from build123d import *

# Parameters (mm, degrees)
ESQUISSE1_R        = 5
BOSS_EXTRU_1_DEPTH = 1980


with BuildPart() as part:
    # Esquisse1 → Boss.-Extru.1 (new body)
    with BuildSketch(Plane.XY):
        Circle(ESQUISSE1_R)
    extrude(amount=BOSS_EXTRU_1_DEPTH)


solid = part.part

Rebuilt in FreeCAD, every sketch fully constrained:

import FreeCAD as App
import Part
import Sketcher

V = App.Vector

doc = App.newDocument("Part")
params = doc.addObject("Spreadsheet::Sheet", "Params")
for row, (alias, value) in enumerate([
    ("sketch1_diameter", "10 mm"),
    ("pad1_length", "1980 mm"),
], start=1):
    params.set(f"A{row}", alias)
    params.set(f"B{row}", "=" + value)
    params.setAlias(f"B{row}", alias)

body = doc.addObject("PartDesign::Body", "Body")

# Sketch on XY plane
sketch1 = body.newObject("Sketcher::SketchObject", "Sketch")
sketch1.AttachmentSupport = (doc.getObject("XY_Plane"), [""])
sketch1.MapMode = "FlatFace"
sketch1.addGeometry(Part.Circle(V(0, 0, 0), V(0, 0, 1), 5), False)
sketch1.addConstraint(Sketcher.Constraint("Coincident", 0, 3, -1, 1))
sketch1.addConstraint(Sketcher.Constraint("Diameter", 0, 10.0))
sketch1.setExpression("Constraints[1]", "Params.sketch1_diameter")
pad1 = body.newObject("PartDesign::Pad", "Pad")
pad1.Profile = sketch1
pad1.setExpression("Length", "Params.pad1_length")

doc.recompute()
